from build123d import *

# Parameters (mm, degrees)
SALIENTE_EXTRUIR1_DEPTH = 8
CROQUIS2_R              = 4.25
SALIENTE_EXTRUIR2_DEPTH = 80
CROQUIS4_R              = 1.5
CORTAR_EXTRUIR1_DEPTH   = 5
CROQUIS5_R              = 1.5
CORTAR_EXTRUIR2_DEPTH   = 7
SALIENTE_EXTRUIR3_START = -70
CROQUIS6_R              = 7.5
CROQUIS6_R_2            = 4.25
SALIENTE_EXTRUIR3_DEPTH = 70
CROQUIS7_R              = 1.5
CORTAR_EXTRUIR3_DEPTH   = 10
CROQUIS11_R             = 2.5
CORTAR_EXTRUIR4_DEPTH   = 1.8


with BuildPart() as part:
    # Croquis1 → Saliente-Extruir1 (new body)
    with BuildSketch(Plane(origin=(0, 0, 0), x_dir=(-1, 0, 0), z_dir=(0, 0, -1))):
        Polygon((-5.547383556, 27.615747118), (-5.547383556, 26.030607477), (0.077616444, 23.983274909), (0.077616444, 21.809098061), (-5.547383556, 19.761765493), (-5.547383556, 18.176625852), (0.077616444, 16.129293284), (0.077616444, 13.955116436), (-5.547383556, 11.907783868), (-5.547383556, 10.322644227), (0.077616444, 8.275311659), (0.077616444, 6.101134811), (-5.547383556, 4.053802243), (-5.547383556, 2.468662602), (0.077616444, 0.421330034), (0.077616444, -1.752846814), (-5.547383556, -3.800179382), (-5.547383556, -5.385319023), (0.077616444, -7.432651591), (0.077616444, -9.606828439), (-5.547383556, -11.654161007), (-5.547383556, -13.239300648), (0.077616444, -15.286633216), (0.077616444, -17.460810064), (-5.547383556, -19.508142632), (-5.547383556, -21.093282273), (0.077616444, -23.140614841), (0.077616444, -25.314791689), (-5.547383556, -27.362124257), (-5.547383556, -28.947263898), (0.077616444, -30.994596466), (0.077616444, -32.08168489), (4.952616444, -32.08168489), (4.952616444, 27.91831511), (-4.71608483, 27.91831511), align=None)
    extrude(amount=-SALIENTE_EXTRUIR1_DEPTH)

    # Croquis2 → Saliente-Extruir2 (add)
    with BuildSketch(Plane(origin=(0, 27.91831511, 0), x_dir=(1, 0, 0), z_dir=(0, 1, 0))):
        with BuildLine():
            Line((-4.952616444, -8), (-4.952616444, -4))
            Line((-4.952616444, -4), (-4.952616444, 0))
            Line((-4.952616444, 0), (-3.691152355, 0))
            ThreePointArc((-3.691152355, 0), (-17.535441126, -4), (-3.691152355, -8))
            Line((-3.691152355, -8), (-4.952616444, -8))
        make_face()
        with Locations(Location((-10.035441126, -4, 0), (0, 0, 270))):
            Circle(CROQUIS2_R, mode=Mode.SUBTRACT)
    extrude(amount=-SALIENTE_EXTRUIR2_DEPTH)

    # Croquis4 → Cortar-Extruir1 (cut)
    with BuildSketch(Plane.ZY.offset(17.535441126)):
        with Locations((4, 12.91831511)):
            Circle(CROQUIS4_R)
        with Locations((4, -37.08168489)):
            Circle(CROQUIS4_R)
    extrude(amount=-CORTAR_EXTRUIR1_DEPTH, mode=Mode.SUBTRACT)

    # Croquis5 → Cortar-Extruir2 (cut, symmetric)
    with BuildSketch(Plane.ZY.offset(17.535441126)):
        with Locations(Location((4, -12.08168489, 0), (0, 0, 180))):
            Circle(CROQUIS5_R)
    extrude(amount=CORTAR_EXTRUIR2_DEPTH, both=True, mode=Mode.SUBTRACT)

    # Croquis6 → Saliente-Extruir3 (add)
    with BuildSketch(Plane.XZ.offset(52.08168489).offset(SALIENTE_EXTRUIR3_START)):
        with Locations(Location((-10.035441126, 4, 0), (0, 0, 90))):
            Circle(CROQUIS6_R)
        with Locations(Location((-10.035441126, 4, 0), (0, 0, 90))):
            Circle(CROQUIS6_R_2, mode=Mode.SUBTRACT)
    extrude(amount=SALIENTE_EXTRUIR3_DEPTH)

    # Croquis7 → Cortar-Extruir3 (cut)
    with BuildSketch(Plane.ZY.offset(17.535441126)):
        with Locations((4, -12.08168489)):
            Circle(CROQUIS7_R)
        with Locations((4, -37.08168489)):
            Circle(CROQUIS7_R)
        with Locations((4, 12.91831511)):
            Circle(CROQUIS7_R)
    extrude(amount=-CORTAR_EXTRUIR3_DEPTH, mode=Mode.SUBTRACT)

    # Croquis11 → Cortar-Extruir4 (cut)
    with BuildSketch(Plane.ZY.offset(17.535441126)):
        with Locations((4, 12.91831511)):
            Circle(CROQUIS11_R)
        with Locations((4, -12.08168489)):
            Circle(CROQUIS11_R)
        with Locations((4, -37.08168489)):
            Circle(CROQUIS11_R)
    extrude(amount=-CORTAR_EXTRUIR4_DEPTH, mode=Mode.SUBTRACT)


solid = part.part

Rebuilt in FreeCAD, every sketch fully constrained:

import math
import FreeCAD as App
import Part
import Sketcher
from FreeCAD import Vector
Q = App.Units.Quantity

doc = App.newDocument("Part")
body = doc.addObject("PartDesign::Body", "Body")

# Sketch on XY plane
sketch1 = doc.addObject("Sketcher::SketchObject", "Sketch")
body.addObject(sketch1)
sketch1.AttachmentSupport = (doc.XY_Plane, [""])
sketch1.MapMode = "FlatFace"
sketch1.addGeometry([
    Part.LineSegment(Vector(5.5, 27.6, 0), Vector(5.5, 26, 0)),  # 0
    Part.LineSegment(Vector(5.5, 26, 0), Vector(-0.1, 24, 0)),  # 1
    Part.LineSegment(Vector(-0.1, 24, 0), Vector(-0.1, 21.8, 0)),  # 2
    Part.LineSegment(Vector(-0.1, 21.8, 0), Vector(5.5, 19.8, 0)),  # 3
    Part.LineSegment(Vector(5.5, 19.8, 0), Vector(5.5, 18.2, 0)),  # 4
    Part.LineSegment(Vector(5.5, 18.2, 0), Vector(-0.1, 16.1, 0)),  # 5
    Part.LineSegment(Vector(-0.1, 16.1, 0), Vector(-0.1, 14, 0)),  # 6
    Part.LineSegment(Vector(-0.1, 14, 0), Vector(5.5, 11.9, 0)),  # 7
    Part.LineSegment(Vector(5.5, 11.9, 0), Vector(5.5, 10.3, 0)),  # 8
    Part.LineSegment(Vector(5.5, 10.3, 0), Vector(-0.1, 8.3, 0)),  # 9
    Part.LineSegment(Vector(-0.1, 8.3, 0), Vector(-0.1, 6.1, 0)),  # 10
    Part.LineSegment(Vector(-0.1, 6.1, 0), Vector(5.5, 4.1, 0)),  # 11
    Part.LineSegment(Vector(5.5, 4.1, 0), Vector(5.5, 2.5, 0)),  # 12
    Part.LineSegment(Vector(5.5, 2.5, 0), Vector(-0.1, 0.4, 0)),  # 13
    Part.LineSegment(Vector(-0.1, 0.4, 0), Vector(-0.1, -1.8, 0)),  # 14
    Part.LineSegment(Vector(-0.1, -1.8, 0), Vector(5.5, -3.8, 0)),  # 15
    Part.LineSegment(Vector(5.5, -3.8, 0), Vector(5.5, -5.4, 0)),  # 16
    Part.LineSegment(Vector(5.5, -5.4, 0), Vector(-0.1, -7.4, 0)),  # 17
    Part.LineSegment(Vector(-0.1, -7.4, 0), Vector(-0.1, -9.6, 0)),  # 18
    Part.LineSegment(Vector(-0.1, -9.6, 0), Vector(5.5, -11.7, 0)),  # 19
    Part.LineSegment(Vector(5.5, -11.7, 0), Vector(5.5, -13.2, 0)),  # 20
    Part.LineSegment(Vector(5.5, -13.2, 0), Vector(-0.1, -15.3, 0)),  # 21
    Part.LineSegment(Vector(-0.1, -15.3, 0), Vector(-0.1, -17.5, 0)),  # 22
    Part.LineSegment(Vector(-0.1, -17.5, 0), Vector(5.5, -19.5, 0)),  # 23
    Part.LineSegment(Vector(5.5, -19.5, 0), Vector(5.5, -21.1, 0)),  # 24
    Part.LineSegment(Vector(5.5, -21.1, 0), Vector(-0.1, -23.1, 0)),  # 25
    Part.LineSegment(Vector(-0.1, -23.1, 0), Vector(-0.1, -25.3, 0)),  # 26
    Part.LineSegment(Vector(-0.1, -25.3, 0), Vector(5.5, -27.4, 0)),  # 27
    Part.LineSegment(Vector(5.5, -27.4, 0), Vector(5.5, -28.9, 0)),  # 28
    Part.LineSegment(Vector(5.5, -28.9, 0), Vector(-0.1, -31, 0)),  # 29
    Part.LineSegment(Vector(-0.1, -31, 0), Vector(-0.1, -32.1, 0)),  # 30
    Part.LineSegment(Vector(-0.1, -32.1, 0), Vector(-5, -32.1, 0)),  # 31
    Part.LineSegment(Vector(-5, -32.1, 0), Vector(-5, 27.9, 0)),  # 32
    Part.LineSegment(Vector(-5, 27.9, 0), Vector(4.7, 27.9, 0)),  # 33
    Part.LineSegment(Vector(4.7, 27.9, 0), Vector(5.5, 27.6, 0)),  # 34
], False)
sketch1.addConstraint([
    Sketcher.Constraint("Coincident", 0, 2, 1, 1),
    Sketcher.Constraint("Coincident", 1, 2, 2, 1),
    Sketcher.Constraint("Coincident", 2, 2, 3, 1),
    Sketcher.Constraint("Coincident", 3, 2, 4, 1),
    Sketcher.Constraint("Coincident", 4, 2, 5, 1),
    Sketcher.Constraint("Coincident", 5, 2, 6, 1),
    Sketcher.Constraint("Coincident", 6, 2, 7, 1),
    Sketcher.Constraint("Coincident", 7, 2, 8, 1),
    Sketcher.Constraint("Coincident", 8, 2, 9, 1),
    Sketcher.Constraint("Coincident", 9, 2, 10, 1),
    Sketcher.Constraint("Coincident", 10, 2, 11, 1),
    Sketcher.Constraint("Coincident", 11, 2, 12, 1),
    Sketcher.Constraint("Coincident", 12, 2, 13, 1),
    Sketcher.Constraint("Coincident", 13, 2, 14, 1),
    Sketcher.Constraint("Coincident", 14, 2, 15, 1),
    Sketcher.Constraint("Coincident", 15, 2, 16, 1),
    Sketcher.Constraint("Coincident", 16, 2, 17, 1),
    Sketcher.Constraint("Coincident", 17, 2, 18, 1),
    Sketcher.Constraint("Coincident", 18, 2, 19, 1),
    Sketcher.Constraint("Coincident", 19, 2, 20, 1),
    Sketcher.Constraint("Coincident", 20, 2, 21, 1),
    Sketcher.Constraint("Coincident", 21, 2, 22, 1),
    Sketcher.Constraint("Coincident", 22, 2, 23, 1),
    Sketcher.Constraint("Coincident", 23, 2, 24, 1),
    Sketcher.Constraint("Coincident", 24, 2, 25, 1),
    Sketcher.Constraint("Coincident", 25, 2, 26, 1),
    Sketcher.Constraint("Coincident", 26, 2, 27, 1),
    Sketcher.Constraint("Coincident", 27, 2, 28, 1),
    Sketcher.Constraint("Coincident", 28, 2, 29, 1),
    Sketcher.Constraint("Coincident", 29, 2, 30, 1),
    Sketcher.Constraint("Coincident", 30, 2, 31, 1),
    Sketcher.Constraint("Coincident", 31, 2, 32, 1),
    Sketcher.Constraint("Coincident", 32, 2, 33, 1),
    Sketcher.Constraint("Coincident", 33, 2, 34, 1),
    Sketcher.Constraint("Coincident", 34, 2, 0, 1),
    Sketcher.Constraint("Vertical", 0),
    Sketcher.Constraint("Vertical", 2),
    Sketcher.Constraint("Vertical", 4),
    Sketcher.Constraint("Vertical", 6),
    Sketcher.Constraint("Vertical", 8),
    Sketcher.Constraint("Vertical", 10),
    Sketcher.Constraint("Vertical", 12),
    Sketcher.Constraint("Vertical", 14),
    Sketcher.Constraint("Vertical", 16),
    Sketcher.Constraint("Vertical", 18),
    Sketcher.Constraint("Vertical", 20),
    Sketcher.Constraint("Vertical", 22),
    Sketcher.Constraint("Vertical", 24),
    Sketcher.Constraint("Vertical", 26),
    Sketcher.Constraint("Vertical", 28),
    Sketcher.Constraint("Vertical", 30),
    Sketcher.Constraint("Horizontal", 31),
    Sketcher.Constraint("Vertical", 32),
    Sketcher.Constraint("Horizontal", 33),
    Sketcher.Constraint("Parallel", 1, 5),
    Sketcher.Constraint("Parallel", 3, 7),
    Sketcher.Constraint("Parallel", 5, 9),
    Sketcher.Constraint("Parallel", 7, 11),
    Sketcher.Constraint("Parallel", 9, 13),
    Sketcher.Constraint("Parallel", 11, 15),
    Sketcher.Constraint("Parallel", 13, 17),
    Sketcher.Constraint("Parallel", 15, 19),
    Sketcher.Constraint("Parallel", 17, 21),
    Sketcher.Constraint("Parallel", 19, 23),
    Sketcher.Constraint("Parallel", 21, 25),
    Sketcher.Constraint("Parallel", 23, 27),
    Sketcher.Constraint("Parallel", 25, 29),
    Sketcher.Constraint("Parallel", 27, 34),
    Sketcher.Constraint("Vertical", 0, 2, 3, 2),
    Sketcher.Constraint("Vertical", 2, 2, 5, 2),
    Sketcher.Constraint("Vertical", 4, 2, 7, 2),
    Sketcher.Constraint("Vertical", 6, 2, 9, 2),
    Sketcher.Constraint("Vertical", 8, 2, 11, 2),
    Sketcher.Constraint("Vertical", 10, 2, 13, 2),
    Sketcher.Constraint("Vertical", 12, 2, 15, 2),
    Sketcher.Constraint("Vertical", 14, 2, 17, 2),
    Sketcher.Constraint("Vertical", 16, 2, 19, 2),
    Sketcher.Constraint("Vertical", 18, 2, 21, 2),
    Sketcher.Constraint("Vertical", 20, 2, 23, 2),
    Sketcher.Constraint("Vertical", 22, 2, 25, 2),
    Sketcher.Constraint("Vertical", 24, 2, 27, 2),
    Sketcher.Constraint("Vertical", 26, 2, 29, 2),
    Sketcher.Constraint("Equal", 0, 4),
    Sketcher.Constraint("Equal", 2, 6),
    Sketcher.Constraint("Equal", 4, 8),
    Sketcher.Constraint("Equal", 6, 10),
    Sketcher.Constraint("Equal", 8, 12),
    Sketcher.Constraint("Equal", 10, 14),
    Sketcher.Constraint("Equal", 12, 16),
    Sketcher.Constraint("Equal", 14, 18),
    Sketcher.Constraint("Equal", 16, 20),
    Sketcher.Constraint("Equal", 18, 22),
    Sketcher.Constraint("Equal", 20, 24),
    Sketcher.Constraint("Equal", 22, 26),
    Sketcher.Constraint("Equal", 24, 28),
    Sketcher.Constraint("Equal", 1, 3),
    Sketcher.Constraint("DistanceY", 32, 1, 32, 2, 60.0),
    Sketcher.Constraint("Angle", 1, Q("-160 deg")),
    Sketcher.Constraint("DistanceX", 31, 2, 28, 2, 10.5),
    Sketcher.Constraint("DistanceX", 31, 2, 31, 1, 4.875),
    Sketcher.Constraint("DistanceX", 33, 1, 33, 2, 9.668701),
    Sketcher.Constraint("DistanceY", 0, 2, 0, 1, 1.58514),
    Sketcher.Constraint("DistanceY", 30, 2, 30, 1, 1.087088),
    Sketcher.Constraint("DistanceY", -1, 1, 2, 2, 21.809098),
    Sketcher.Constraint("DistanceX", -1, 1, 0, 2, 5.547384),
])
pad1 = doc.addObject("PartDesign::Pad", "Pad")
body.addObject(pad1)
pad1.Profile = sketch1
pad1.Length = 8

# Sketch on XZ plane
sketch2 = doc.addObject("Sketcher::SketchObject", "Sketch001")
body.addObject(sketch2)
sketch2.AttachmentSupport = (doc.XZ_Plane, [""])
sketch2.MapMode = "FlatFace"
sketch2.AttachmentOffset = App.Placement(Vector(0, 0, -27.918315), App.Rotation())
sketch2.addGeometry([
    Part.LineSegment(Vector(-5, 8, 0), Vector(-5, 0, 0)),  # 0
    Part.LineSegment(Vector(-5, 0, 0), Vector(-3.7, 0, 0)),  # 1
    Part.ArcOfCircle(Part.Circle(Vector(-10, 4, 0), Vector(0, 0, 1), 7.5), math.radians(32), math.radians(328)),  # 2
    Part.LineSegment(Vector(-3.7, 8, 0), Vector(-5, 8, 0)),  # 3
    Part.Circle(Vector(-10, 4, 0), Vector(0, 0, 1), 4.2),  # 4
], False)
sketch2.addConstraint([
    Sketcher.Constraint("Coincident", 0, 2, 1, 1),
    Sketcher.Constraint("Coincident", 1, 2, 2, 2),
    Sketcher.Constraint("Coincident", 2, 1, 3, 1),
    Sketcher.Constraint("Coincident", 3, 2, 0, 1),
    Sketcher.Constraint("Vertical", 0),
    Sketcher.Constraint("Horizontal", 1),
    Sketcher.Constraint("Horizontal", 3),
    Sketcher.Constraint("Coincident", 4, 3, 2, 3),
    Sketcher.Constraint("PointOnObject", 0, 2, -1),
    Sketcher.Constraint("Vertical", 1, 2, 2, 1),
    Sketcher.Constraint("Diameter", 4, 8.5),
    Sketcher.Constraint("Radius", 2, 7.5),
    Sketcher.Constraint("DistanceY", 0, 2, 0, 1, 8.0),
    Sketcher.Constraint("DistanceX", 1, 1, 1, 2, 1.261464),
    Sketcher.Constraint("DistanceX", 2, 3, -1, 1, 10.035441),
])
pad2 = doc.addObject("PartDesign::Pad", "Pad001")
body.addObject(pad2)
pad2.Profile = sketch2
pad2.Length = 80

# Sketch on YZ plane
sketch3 = doc.addObject("Sketcher::SketchObject", "Sketch002")
body.addObject(sketch3)
sketch3.AttachmentSupport = (doc.YZ_Plane, [""])
sketch3.MapMode = "FlatFace"
sketch3.AttachmentOffset = App.Placement(Vector(0, 0, -17.535441), App.Rotation())
sketch3.addGeometry([
    Part.Circle(Vector(12.9, 4, 0), Vector(0, 0, 1), 1.5),
    Part.Circle(Vector(-37.1, 4, 0), Vector(0, 0, 1), 1.5),
], False)
sketch3.addConstraint([
    Sketcher.Constraint("Equal", 0, 1),
    Sketcher.Constraint("Horizontal", 0, 3, 1, 3),
    Sketcher.Constraint("Diameter", 0, 3.0),
    Sketcher.Constraint("DistanceY", -1, 1, 0, 3, 4.0),
    Sketcher.Constraint("DistanceX", 1, 3, 0, 3, 50.0),
    Sketcher.Constraint("DistanceX", -1, 1, 0, 3, 12.918315),
])
pocket1 = doc.addObject("PartDesign::Pocket", "Pocket")
body.addObject(pocket1)
pocket1.Profile = sketch3
pocket1.Length = 5
pocket1.Reversed = True

# Sketch on YZ plane
sketch4 = doc.addObject("Sketcher::SketchObject", "Sketch003")
body.addObject(sketch4)
sketch4.AttachmentSupport = (doc.YZ_Plane, [""])
sketch4.MapMode = "FlatFace"
sketch4.AttachmentOffset = App.Placement(Vector(0, 0, -17.535441), App.Rotation())
sketch4.addGeometry(Part.Circle(Vector(-12.1, 4, 0), Vector(0, 0, 1), 1.5), False)
sketch4.addConstraint([
    Sketcher.Constraint("Diameter", 0, 3.0),
    Sketcher.Constraint("DistanceY", -1, 1, 0, 3, 4.0),
    Sketcher.Constraint("DistanceX", 0, 3, -1, 1, 12.081685),
])
pocket2 = doc.addObject("PartDesign::Pocket", "Pocket001")
body.addObject(pocket2)
pocket2.Profile = sketch4
pocket2.Length = 14
pocket2.Midplane = True

# Sketch on XZ plane
sketch5 = doc.addObject("Sketcher::SketchObject", "Sketch004")
body.addObject(sketch5)
sketch5.AttachmentSupport = (doc.XZ_Plane, [""])
sketch5.MapMode = "FlatFace"
sketch5.AttachmentOffset = App.Placement(Vector(0, 0, -17.918315), App.Rotation())
sketch5.addGeometry([
    Part.Circle(Vector(-10, 4, 0), Vector(0, 0, 1), 7.5),
    Part.Circle(Vector(-10, 4, 0), Vector(0, 0, 1), 4.2),
], False)
sketch5.addConstraint([
    Sketcher.Constraint("Coincident", 1, 3, 0, 3),
    Sketcher.Constraint("Diameter", 0, 15.0),
    Sketcher.Constraint("Diameter", 1, 8.5),
    Sketcher.Constraint("DistanceY", -1, 1, 0, 3, 4.0),
    Sketcher.Constraint("DistanceX", 0, 3, -1, 1, 10.035441),
])
pad3 = doc.addObject("PartDesign::Pad", "Pad002")
body.addObject(pad3)
pad3.Profile = sketch5
pad3.Length = 70

# Sketch on YZ plane
sketch6 = doc.addObject("Sketcher::SketchObject", "Sketch005")
body.addObject(sketch6)
sketch6.AttachmentSupport = (doc.YZ_Plane, [""])
sketch6.MapMode = "FlatFace"
sketch6.AttachmentOffset = App.Placement(Vector(0, 0, -17.535441), App.Rotation())
sketch6.addGeometry([
    Part.Circle(Vector(-12.1, 4, 0), Vector(0, 0, 1), 1.5),
    Part.Circle(Vector(-37.1, 4, 0), Vector(0, 0, 1), 1.5),
    Part.Circle(Vector(12.9, 4, 0), Vector(0, 0, 1), 1.5),
], False)
sketch6.addConstraint([
    Sketcher.Constraint("Equal", 0, 1),
    Sketcher.Constraint("Equal", 1, 2),
    Sketcher.Constraint("Horizontal", 0, 3, 1, 3),
    Sketcher.Constraint("Horizontal", 1, 3, 2, 3),
    Sketcher.Constraint("Diameter", 0, 3.0),
    Sketcher.Constraint("DistanceY", -1, 1, 0, 3, 4.0),
    Sketcher.Constraint("DistanceX", 1, 3, 0, 3, 25.0),
    Sketcher.Constraint("DistanceX", 0, 3, 2, 3, 25.0),
    Sketcher.Constraint("DistanceX", 0, 3, -1, 1, 12.081685),
])
pocket3 = doc.addObject("PartDesign::Pocket", "Pocket002")
body.addObject(pocket3)
pocket3.Profile = sketch6
pocket3.Length = 10
pocket3.Reversed = True

# Sketch on YZ plane
sketch7 = doc.addObject("Sketcher::SketchObject", "Sketch006")
body.addObject(sketch7)
sketch7.AttachmentSupport = (doc.YZ_Plane, [""])
sketch7.MapMode = "FlatFace"
sketch7.AttachmentOffset = App.Placement(Vector(0, 0, -17.535441), App.Rotation())
sketch7.addGeometry([
    Part.Circle(Vector(12.9, 4, 0), Vector(0, 0, 1), 2.5),
    Part.Circle(Vector(-12.1, 4, 0), Vector(0, 0, 1), 2.5),
    Part.Circle(Vector(-37.1, 4, 0), Vector(0, 0, 1), 2.5),
], False)
sketch7.addConstraint([
    Sketcher.Constraint("Equal", 0, 1),
    Sketcher.Constraint("Equal", 1, 2),
    Sketcher.Constraint("Horizontal", 0, 3, 1, 3),
    Sketcher.Constraint("Horizontal", 1, 3, 2, 3),
    Sketcher.Constraint("Diameter", 0, 5.0),
    Sketcher.Constraint("DistanceY", -1, 1, 0, 3, 4.0),
    Sketcher.Constraint("DistanceX", 1, 3, 0, 3, 25.0),
    Sketcher.Constraint("DistanceX", 2, 3, 1, 3, 25.0),
    Sketcher.Constraint("DistanceX", -1, 1, 0, 3, 12.918315),
])
pocket4 = doc.addObject("PartDesign::Pocket", "Pocket003")
body.addObject(pocket4)
pocket4.Profile = sketch7
pocket4.Length = 1.8
pocket4.Reversed = True

doc.recompute()
